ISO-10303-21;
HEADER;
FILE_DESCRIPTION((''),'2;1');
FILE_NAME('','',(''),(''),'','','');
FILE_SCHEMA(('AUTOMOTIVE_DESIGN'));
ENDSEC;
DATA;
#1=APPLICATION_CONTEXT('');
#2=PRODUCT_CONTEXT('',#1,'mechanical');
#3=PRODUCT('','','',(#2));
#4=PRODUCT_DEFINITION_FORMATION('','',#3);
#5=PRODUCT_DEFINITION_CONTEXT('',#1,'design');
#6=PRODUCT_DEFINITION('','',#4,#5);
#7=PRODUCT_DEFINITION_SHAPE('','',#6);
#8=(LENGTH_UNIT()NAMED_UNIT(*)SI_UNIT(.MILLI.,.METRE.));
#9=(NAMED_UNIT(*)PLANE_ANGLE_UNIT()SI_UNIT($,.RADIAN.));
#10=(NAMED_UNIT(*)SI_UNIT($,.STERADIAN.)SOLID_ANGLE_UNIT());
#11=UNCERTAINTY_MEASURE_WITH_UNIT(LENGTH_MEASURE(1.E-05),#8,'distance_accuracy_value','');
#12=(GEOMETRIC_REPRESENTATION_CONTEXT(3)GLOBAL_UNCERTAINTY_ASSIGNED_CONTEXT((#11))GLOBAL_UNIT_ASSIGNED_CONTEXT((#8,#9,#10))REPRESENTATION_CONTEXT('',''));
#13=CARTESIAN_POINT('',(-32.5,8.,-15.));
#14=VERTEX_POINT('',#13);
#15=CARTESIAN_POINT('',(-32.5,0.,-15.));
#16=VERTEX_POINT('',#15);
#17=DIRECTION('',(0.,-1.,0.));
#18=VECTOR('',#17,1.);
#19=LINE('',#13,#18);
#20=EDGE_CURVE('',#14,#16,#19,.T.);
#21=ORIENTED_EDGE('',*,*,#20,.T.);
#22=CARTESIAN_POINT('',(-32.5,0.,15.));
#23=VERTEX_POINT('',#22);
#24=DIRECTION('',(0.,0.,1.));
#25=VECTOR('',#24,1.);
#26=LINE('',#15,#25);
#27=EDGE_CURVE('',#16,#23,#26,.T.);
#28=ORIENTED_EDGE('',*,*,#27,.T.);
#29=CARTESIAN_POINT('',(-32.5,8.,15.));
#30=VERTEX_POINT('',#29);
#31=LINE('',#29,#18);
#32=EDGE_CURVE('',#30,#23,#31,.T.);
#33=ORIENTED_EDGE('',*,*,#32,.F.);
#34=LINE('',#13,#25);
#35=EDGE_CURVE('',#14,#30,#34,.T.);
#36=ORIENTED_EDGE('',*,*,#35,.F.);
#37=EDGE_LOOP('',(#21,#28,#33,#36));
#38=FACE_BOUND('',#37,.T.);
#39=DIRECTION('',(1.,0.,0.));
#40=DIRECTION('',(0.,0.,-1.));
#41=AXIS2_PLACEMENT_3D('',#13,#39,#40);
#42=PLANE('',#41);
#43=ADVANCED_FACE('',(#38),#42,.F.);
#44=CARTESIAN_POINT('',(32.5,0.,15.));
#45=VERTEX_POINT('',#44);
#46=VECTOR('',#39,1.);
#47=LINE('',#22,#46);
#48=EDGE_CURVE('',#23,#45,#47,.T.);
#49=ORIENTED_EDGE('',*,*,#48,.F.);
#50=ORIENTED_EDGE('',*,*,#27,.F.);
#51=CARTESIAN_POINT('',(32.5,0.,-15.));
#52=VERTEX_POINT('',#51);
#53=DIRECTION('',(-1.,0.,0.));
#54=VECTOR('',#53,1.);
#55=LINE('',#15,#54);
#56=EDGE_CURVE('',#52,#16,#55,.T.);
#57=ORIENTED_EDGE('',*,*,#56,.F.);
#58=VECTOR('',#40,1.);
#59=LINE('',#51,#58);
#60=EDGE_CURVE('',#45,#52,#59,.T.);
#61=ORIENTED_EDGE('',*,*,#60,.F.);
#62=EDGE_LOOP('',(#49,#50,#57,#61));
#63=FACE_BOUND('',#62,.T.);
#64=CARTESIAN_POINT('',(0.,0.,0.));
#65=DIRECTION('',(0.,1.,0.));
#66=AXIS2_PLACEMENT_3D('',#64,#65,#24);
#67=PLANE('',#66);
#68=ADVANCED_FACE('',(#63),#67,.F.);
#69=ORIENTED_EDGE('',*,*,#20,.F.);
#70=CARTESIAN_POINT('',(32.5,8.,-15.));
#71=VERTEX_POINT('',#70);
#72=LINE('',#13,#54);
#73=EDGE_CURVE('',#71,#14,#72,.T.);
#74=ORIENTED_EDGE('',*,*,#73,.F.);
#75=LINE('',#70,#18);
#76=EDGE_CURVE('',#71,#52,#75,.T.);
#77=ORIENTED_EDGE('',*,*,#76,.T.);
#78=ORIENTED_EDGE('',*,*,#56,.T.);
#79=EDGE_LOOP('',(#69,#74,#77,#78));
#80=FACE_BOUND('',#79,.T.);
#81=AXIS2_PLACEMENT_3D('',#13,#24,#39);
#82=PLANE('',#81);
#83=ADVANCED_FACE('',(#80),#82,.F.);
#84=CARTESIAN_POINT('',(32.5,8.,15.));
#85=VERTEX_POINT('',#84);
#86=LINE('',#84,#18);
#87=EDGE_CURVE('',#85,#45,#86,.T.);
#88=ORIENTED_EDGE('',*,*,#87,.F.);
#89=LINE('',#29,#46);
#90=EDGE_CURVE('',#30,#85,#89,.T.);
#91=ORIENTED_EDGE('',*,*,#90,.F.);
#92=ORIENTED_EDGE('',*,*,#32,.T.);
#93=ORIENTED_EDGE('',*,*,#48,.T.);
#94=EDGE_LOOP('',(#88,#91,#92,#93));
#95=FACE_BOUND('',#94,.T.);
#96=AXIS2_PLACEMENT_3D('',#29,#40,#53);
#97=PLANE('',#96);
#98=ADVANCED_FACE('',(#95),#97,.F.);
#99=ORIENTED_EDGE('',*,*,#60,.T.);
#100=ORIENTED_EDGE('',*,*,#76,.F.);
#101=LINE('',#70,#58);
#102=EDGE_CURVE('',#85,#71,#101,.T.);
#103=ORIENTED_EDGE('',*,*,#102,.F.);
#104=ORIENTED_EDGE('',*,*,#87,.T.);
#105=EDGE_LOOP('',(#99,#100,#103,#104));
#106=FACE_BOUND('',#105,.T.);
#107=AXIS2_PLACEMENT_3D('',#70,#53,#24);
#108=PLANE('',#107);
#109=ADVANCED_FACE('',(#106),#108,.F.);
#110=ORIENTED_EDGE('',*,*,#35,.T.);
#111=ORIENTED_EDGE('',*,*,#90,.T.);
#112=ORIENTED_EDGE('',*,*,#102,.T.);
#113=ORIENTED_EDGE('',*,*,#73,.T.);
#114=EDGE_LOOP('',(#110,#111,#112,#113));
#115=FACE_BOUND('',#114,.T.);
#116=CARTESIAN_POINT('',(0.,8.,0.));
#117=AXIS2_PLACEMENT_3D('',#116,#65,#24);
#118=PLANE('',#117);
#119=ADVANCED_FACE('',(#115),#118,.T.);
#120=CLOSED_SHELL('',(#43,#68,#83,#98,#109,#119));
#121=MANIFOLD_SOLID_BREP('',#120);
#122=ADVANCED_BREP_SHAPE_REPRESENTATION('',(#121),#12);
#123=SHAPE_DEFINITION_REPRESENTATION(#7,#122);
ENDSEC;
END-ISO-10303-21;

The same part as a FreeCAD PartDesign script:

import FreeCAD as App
import Part
import Sketcher
Q = App.Units.Quantity


def add_polygon(sketch, points):
    """Adds a closed chain of lines whose ends are joined by coincident constraints."""
    first, n = sketch.GeometryCount, len(points)
    for a, b in zip(points, points[1:] + points[:1]):
        sketch.addGeometry(Part.LineSegment(App.Vector(*a, 0), App.Vector(*b, 0)), False)
    for i in range(n):
        sketch.addConstraint(Sketcher.Constraint("Coincident", first + i, 2, first + (i + 1) % n, 1))

doc = App.newDocument("Part")
body = doc.addObject("PartDesign::Body", "Body")

# Sketch on XZ plane
sketch1 = body.newObject("Sketcher::SketchObject", "Sketch")
sketch1.AttachmentSupport = (doc.getObject("XZ_Plane"), [""])
sketch1.MapMode = "FlatFace"
add_polygon(sketch1, [(-32, -15), (-32, 15), (32, 15), (32, -15)])  # lines 0-3
sketch1.addConstraint([
    Sketcher.Constraint("Vertical", 0),
    Sketcher.Constraint("Horizontal", 1),
    Sketcher.Constraint("Vertical", 2),
    Sketcher.Constraint("Horizontal", 3),
    Sketcher.Constraint("Symmetric", 0, 2, 2, 2, -1, 1),
    Sketcher.Constraint("DistanceX", 1, 1, 1, 2, Q("65 mm")),
    Sketcher.Constraint("DistanceY", 0, 1, 0, 2, Q("30 mm")),
])
pad1 = body.newObject("PartDesign::Pad", "Pad")
pad1.Profile = sketch1
pad1.Length = 8
pad1.Reversed = True

doc.recompute()
